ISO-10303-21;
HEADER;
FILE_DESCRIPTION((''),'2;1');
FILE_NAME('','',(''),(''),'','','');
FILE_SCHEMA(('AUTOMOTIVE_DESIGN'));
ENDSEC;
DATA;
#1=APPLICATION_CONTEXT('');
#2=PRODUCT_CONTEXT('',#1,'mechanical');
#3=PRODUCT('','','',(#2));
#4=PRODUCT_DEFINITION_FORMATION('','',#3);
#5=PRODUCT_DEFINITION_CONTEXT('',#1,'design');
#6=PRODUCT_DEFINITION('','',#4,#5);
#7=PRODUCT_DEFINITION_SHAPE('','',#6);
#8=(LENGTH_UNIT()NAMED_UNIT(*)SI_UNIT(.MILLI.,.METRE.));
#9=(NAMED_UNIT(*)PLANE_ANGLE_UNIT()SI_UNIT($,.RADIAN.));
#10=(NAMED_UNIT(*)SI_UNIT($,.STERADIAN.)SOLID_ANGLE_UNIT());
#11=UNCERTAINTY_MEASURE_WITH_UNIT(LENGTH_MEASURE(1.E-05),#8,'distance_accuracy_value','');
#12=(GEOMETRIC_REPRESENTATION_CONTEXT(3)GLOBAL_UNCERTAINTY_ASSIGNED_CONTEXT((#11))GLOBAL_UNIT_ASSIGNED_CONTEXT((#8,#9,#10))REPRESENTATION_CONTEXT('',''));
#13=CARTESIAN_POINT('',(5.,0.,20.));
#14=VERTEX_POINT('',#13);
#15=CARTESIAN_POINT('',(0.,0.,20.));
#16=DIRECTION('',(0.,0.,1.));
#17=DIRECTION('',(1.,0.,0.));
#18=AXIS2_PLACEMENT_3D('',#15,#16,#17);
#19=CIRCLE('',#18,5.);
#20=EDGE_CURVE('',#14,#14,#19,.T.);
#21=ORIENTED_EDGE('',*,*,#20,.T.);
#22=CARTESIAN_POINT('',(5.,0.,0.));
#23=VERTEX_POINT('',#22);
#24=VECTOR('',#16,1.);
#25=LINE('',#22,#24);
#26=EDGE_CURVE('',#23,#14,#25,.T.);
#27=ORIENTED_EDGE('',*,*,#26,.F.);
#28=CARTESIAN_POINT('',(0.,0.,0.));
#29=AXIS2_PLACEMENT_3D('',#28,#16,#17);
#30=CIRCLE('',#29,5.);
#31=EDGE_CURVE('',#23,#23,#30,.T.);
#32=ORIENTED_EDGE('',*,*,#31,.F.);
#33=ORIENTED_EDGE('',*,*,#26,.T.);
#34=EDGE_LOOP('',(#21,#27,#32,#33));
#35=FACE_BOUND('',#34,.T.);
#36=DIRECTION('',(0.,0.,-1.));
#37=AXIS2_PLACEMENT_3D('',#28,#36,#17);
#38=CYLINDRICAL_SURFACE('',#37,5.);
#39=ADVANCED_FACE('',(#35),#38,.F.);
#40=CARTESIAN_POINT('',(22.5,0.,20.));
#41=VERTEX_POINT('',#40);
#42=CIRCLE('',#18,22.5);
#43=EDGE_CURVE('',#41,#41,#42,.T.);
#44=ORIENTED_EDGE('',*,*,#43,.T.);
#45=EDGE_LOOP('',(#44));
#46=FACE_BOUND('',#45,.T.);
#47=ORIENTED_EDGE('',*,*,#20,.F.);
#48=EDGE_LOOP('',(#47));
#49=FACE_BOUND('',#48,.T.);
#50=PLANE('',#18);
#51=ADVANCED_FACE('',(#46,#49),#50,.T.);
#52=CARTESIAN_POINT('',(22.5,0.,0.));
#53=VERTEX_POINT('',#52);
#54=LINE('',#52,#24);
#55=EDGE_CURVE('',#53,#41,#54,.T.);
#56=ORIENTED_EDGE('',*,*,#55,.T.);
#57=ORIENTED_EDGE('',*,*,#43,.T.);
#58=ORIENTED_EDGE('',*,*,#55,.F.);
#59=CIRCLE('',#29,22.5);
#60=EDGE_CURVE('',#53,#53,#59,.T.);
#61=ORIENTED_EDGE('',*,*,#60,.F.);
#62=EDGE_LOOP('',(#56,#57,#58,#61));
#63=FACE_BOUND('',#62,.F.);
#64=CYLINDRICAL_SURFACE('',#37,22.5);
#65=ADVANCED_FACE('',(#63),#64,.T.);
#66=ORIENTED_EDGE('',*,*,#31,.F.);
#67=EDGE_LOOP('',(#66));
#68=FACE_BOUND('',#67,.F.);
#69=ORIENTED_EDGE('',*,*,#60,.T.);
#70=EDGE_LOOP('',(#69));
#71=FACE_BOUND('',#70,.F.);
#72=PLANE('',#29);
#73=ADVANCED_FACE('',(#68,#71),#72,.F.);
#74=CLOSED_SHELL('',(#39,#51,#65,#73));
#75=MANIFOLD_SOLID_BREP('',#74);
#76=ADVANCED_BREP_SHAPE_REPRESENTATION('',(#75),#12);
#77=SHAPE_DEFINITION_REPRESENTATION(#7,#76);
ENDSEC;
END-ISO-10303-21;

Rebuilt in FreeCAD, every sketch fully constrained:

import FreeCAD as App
import Part
import Sketcher

V = App.Vector

doc = App.newDocument("Part")
body = doc.addObject("PartDesign::Body", "Body")

# Sketch on XY plane
sketch1 = doc.addObject("Sketcher::SketchObject", "Sketch")
body.addObject(sketch1)
sketch1.AttachmentSupport = (doc.XY_Plane, [""])
sketch1.MapMode = "FlatFace"
sketch1.addGeometry([
    Part.Circle(V(0, 0, 0), V(0, 0, 1), 22.5),
    Part.Circle(V(0, 0, 0), V(0, 0, 1), 5),
], False)
sketch1.addConstraint([
    Sketcher.Constraint("Coincident", 0, 3, -1, 1),
    Sketcher.Constraint("Coincident", 1, 3, -1, 1),
    Sketcher.Constraint("Diameter", 0, 45.0),
    Sketcher.Constraint("Diameter", 1, 10.0),
])
pad1 = doc.addObject("PartDesign::Pad", "Pad")
body.addObject(pad1)
pad1.Profile = sketch1
pad1.Length = 20

doc.recompute()
